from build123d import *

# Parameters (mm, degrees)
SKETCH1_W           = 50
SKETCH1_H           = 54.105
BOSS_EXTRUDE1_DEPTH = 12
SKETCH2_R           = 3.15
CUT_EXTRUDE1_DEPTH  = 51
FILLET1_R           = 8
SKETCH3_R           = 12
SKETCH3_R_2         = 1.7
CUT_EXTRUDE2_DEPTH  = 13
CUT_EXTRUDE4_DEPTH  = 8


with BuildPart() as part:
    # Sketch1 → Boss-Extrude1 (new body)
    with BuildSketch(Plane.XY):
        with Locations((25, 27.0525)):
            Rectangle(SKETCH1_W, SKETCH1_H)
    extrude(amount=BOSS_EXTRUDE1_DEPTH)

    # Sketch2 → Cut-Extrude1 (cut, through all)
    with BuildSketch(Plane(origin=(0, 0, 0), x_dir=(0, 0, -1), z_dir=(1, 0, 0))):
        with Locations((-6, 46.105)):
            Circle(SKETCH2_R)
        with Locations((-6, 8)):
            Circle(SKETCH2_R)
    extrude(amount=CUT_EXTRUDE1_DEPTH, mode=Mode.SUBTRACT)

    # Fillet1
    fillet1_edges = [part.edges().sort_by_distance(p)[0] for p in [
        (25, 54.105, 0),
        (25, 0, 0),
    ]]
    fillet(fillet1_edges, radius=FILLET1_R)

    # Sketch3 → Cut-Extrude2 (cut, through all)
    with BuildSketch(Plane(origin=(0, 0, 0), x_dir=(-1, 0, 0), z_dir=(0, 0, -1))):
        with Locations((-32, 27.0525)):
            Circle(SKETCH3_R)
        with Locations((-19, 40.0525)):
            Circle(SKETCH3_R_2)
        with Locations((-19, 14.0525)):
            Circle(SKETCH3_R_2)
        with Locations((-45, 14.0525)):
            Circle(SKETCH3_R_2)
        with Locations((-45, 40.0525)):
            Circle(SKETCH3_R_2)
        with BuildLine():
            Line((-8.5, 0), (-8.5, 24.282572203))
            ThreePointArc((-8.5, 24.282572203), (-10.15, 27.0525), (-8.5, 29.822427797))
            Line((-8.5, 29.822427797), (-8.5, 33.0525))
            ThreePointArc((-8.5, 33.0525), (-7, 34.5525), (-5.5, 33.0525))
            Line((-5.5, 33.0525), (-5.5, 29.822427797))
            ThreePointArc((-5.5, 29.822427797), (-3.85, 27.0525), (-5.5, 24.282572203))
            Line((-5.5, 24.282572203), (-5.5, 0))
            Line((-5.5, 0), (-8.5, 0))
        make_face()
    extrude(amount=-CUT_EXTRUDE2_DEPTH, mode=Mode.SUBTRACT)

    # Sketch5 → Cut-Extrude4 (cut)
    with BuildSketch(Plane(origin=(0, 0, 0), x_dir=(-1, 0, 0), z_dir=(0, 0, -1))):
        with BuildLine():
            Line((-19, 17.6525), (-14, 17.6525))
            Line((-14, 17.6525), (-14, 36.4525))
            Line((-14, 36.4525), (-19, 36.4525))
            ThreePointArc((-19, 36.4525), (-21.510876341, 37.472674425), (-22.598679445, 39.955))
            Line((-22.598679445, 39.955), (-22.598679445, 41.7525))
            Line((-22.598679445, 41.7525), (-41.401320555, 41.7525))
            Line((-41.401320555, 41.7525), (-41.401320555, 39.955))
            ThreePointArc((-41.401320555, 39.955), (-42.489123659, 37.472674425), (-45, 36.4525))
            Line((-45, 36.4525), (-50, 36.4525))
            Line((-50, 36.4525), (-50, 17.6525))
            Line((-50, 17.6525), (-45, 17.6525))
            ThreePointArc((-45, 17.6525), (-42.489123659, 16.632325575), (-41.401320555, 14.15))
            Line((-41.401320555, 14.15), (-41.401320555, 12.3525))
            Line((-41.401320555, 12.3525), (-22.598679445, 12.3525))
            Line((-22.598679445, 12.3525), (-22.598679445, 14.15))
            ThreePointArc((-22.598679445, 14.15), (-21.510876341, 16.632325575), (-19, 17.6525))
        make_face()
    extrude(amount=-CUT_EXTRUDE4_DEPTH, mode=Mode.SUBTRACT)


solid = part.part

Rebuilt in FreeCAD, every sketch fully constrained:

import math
import FreeCAD as App
import Part
import Sketcher

V = App.Vector
Q = App.Units.Quantity


def edges_at(feature, points):
    """Names of the edges that pass closest to the given points."""
    edges = feature.Shape.Edges
    near = lambda p: min(range(len(edges)), key=lambda i: edges[i].distToShape(Part.Vertex(*p))[0])
    return sorted({f"Edge{near(p) + 1}" for p in points})


def add_polygon(sketch, points):
    """Adds a closed chain of lines whose ends are joined by coincident constraints."""
    first, n = sketch.GeometryCount, len(points)
    for a, b in zip(points, points[1:] + points[:1]):
        sketch.addGeometry(Part.LineSegment(App.Vector(*a, 0), App.Vector(*b, 0)), False)
    for i in range(n):
        sketch.addConstraint(Sketcher.Constraint("Coincident", first + i, 2, first + (i + 1) % n, 1))

doc = App.newDocument("Part")
body = doc.addObject("PartDesign::Body", "Body")

# Sketch on XY plane
sketch1 = body.newObject("Sketcher::SketchObject", "Sketch")
sketch1.AttachmentSupport = (doc.getObject("XY_Plane"), [""])
sketch1.MapMode = "FlatFace"
add_polygon(sketch1, [(0, 54), (0, 0), (50, 0), (50, 54)])  # lines 0-3
sketch1.addConstraint([
    Sketcher.Constraint("Vertical", 0),
    Sketcher.Constraint("Horizontal", 1),
    Sketcher.Constraint("Vertical", 2),
    Sketcher.Constraint("Horizontal", 3),
    Sketcher.Constraint("Coincident", 0, 2, -1, 1),
    Sketcher.Constraint("DistanceX", 1, 1, 1, 2, Q("50 mm")),
    Sketcher.Constraint("DistanceY", 0, 2, 0, 1, Q("54.105 mm")),
])
pad1 = body.newObject("PartDesign::Pad", "Pad")
pad1.Profile = sketch1
pad1.Length = 12

# Sketch on YZ plane
sketch2 = body.newObject("Sketcher::SketchObject", "Sketch001")
sketch2.AttachmentSupport = (doc.getObject("YZ_Plane"), [""])
sketch2.MapMode = "FlatFace"
sketch2.addGeometry([
    Part.Circle(V(46.1, 6, 0), V(0, 0, 1), 3.1),
    Part.Circle(V(8, 6, 0), V(0, 0, 1), 3.1),
], False)
sketch2.addConstraint([
    Sketcher.Constraint("Equal", 0, 1),
    Sketcher.Constraint("Horizontal", 0, 3, 1, 3),
    Sketcher.Constraint("Diameter", 0, Q("6.3 mm")),
    Sketcher.Constraint("DistanceY", -1, 1, 0, 3, Q("6 mm")),
    Sketcher.Constraint("DistanceX", -1, 1, 1, 3, Q("8 mm")),
    Sketcher.Constraint("DistanceX", -1, 1, 0, 3, Q("46.105 mm")),
])
pocket1 = body.newObject("PartDesign::Pocket", "Pocket")
pocket1.Profile = sketch2
pocket1.Type = "ThroughAll"
pocket1.Reversed = True
doc.recompute()

fillet = body.newObject("PartDesign::Fillet", "Fillet")
fillet.Base = (pocket1, edges_at(pocket1, [(25, 54.105, 0), (25, 0, 0)]))
fillet.Radius = 8

# Sketch on XY plane
sketch3 = body.newObject("Sketcher::SketchObject", "Sketch002")
sketch3.AttachmentSupport = (doc.getObject("XY_Plane"), [""])
sketch3.MapMode = "FlatFace"
sketch3.addGeometry([
    Part.Circle(V(32, 27.1, 0), V(0, 0, 1), 12),  # 0
    Part.Circle(V(19, 40.1, 0), V(0, 0, 1), 1.7),  # 1
    Part.Circle(V(19, 14.1, 0), V(0, 0, 1), 1.7),  # 2
    Part.Circle(V(45, 14.1, 0), V(0, 0, 1), 1.7),  # 3
    Part.Circle(V(45, 40.1, 0), V(0, 0, 1), 1.7),  # 4
    Part.LineSegment(V(8.5, 24.3, 0), V(8.5, 0, 0)),  # 5
    Part.LineSegment(V(8.5, 0, 0), V(5.5, 0, 0)),  # 6
    Part.LineSegment(V(5.5, 0, 0), V(5.5, 24.3, 0)),  # 7
    Part.ArcOfCircle(Part.Circle(V(7, 27.1, 0), V(0, 0, 1), 3.1), math.radians(118), math.radians(242)),  # 8
    Part.LineSegment(V(5.5, 29.8, 0), V(5.5, 33.1, 0)),  # 9
    Part.ArcOfCircle(Part.Circle(V(7, 33.1, 0), V(0, 0, 1), 1.5), math.radians(0), math.radians(180)),  # 10
    Part.LineSegment(V(8.5, 33.1, 0), V(8.5, 29.8, 0)),  # 11
    Part.ArcOfCircle(Part.Circle(V(7, 27.1, 0), V(0, 0, 1), 3.1), math.radians(-62), math.radians(62)),  # 12
], False)
sketch3.addConstraint([
    Sketcher.Constraint("Coincident", 5, 2, 6, 1),
    Sketcher.Constraint("Coincident", 6, 2, 7, 1),
    Sketcher.Constraint("Coincident", 7, 2, 8, 2),
    Sketcher.Constraint("Coincident", 8, 1, 9, 1),
    Sketcher.Constraint("Tangent", 9, 2, 10, 2),
    Sketcher.Constraint("Tangent", 10, 1, 11, 1),
    Sketcher.Constraint("Coincident", 11, 2, 12, 2),
    Sketcher.Constraint("Coincident", 12, 1, 5, 1),
    Sketcher.Constraint("Vertical", 5),
    Sketcher.Constraint("Horizontal", 6),
    Sketcher.Constraint("Vertical", 7),
    Sketcher.Constraint("Vertical", 9),
    Sketcher.Constraint("Vertical", 11),
    Sketcher.Constraint("Coincident", 12, 3, 8, 3),
    Sketcher.Constraint("Equal", 1, 2),
    Sketcher.Constraint("Equal", 2, 3),
    Sketcher.Constraint("Equal", 3, 4),
    Sketcher.Constraint("Equal", 8, 12),
    Sketcher.Constraint("PointOnObject", 5, 2, -1),
    Sketcher.Constraint("Horizontal", 2, 3, 3, 3),
    Sketcher.Constraint("Horizontal", 1, 3, 4, 3),
    Sketcher.Constraint("Horizontal", 0, 3, 8, 3),
    Sketcher.Constraint("Horizontal", 8, 1, 11, 2),
    Sketcher.Constraint("Horizontal", 7, 2, 12, 1),
    Sketcher.Constraint("Vertical", 1, 3, 2, 3),
    Sketcher.Constraint("Vertical", 3, 3, 4, 3),
    Sketcher.Constraint("Vertical", 7, 2, 8, 1),
    Sketcher.Constraint("Diameter", 0, Q("24 mm")),
    Sketcher.Constraint("Diameter", 1, Q("3.4 mm")),
    Sketcher.Constraint("Radius", 10, Q("1.5 mm")),
    Sketcher.Constraint("Radius", 8, Q("3.15 mm")),
    Sketcher.Constraint("DistanceX", -1, 1, 0, 3, Q("32 mm")),
    Sketcher.Constraint("DistanceX", -1, 1, 1, 3, Q("19 mm")),
    Sketcher.Constraint("DistanceX", -1, 1, 3, 3, Q("45 mm")),
    Sketcher.Constraint("DistanceX", -1, 1, 8, 3, Q("7 mm")),
    Sketcher.Constraint("DistanceY", 0, 3, 1, 3, Q("13 mm")),
    Sketcher.Constraint("DistanceY", 2, 3, 0, 3, Q("13 mm")),
    Sketcher.Constraint("DistanceY", 8, 3, 10, 3, Q("6 mm")),
    Sketcher.Constraint("DistanceY", -1, 1, 0, 3, Q("27.0525 mm")),
])
pocket2 = body.newObject("PartDesign::Pocket", "Pocket001")
pocket2.Profile = sketch3
pocket2.Type = "ThroughAll"
pocket2.Reversed = True

# Sketch on XY plane
sketch4 = body.newObject("Sketcher::SketchObject", "Sketch003")
sketch4.AttachmentSupport = (doc.getObject("XY_Plane"), [""])
sketch4.MapMode = "FlatFace"
sketch4.addGeometry([
    Part.LineSegment(V(19, 17.7, 0), V(14, 17.7, 0)),  # 0
    Part.LineSegment(V(14, 17.7, 0), V(14, 36.5, 0)),  # 1
    Part.LineSegment(V(14, 36.5, 0), V(19, 36.5, 0)),  # 2
    Part.ArcOfCircle(Part.Circle(V(19, 40.1, 0), V(0, 0, 1), 3.6), math.radians(-90), math.radians(-2)),  # 3
    Part.LineSegment(V(22.6, 40, 0), V(22.6, 41.8, 0)),  # 4
    Part.LineSegment(V(22.6, 41.8, 0), V(41.4, 41.8, 0)),  # 5
    Part.LineSegment(V(41.4, 41.8, 0), V(41.4, 40, 0)),  # 6
    Part.ArcOfCircle(Part.Circle(V(45, 40.1, 0), V(0, 0, 1), 3.6), math.radians(-178), math.radians(-90)),  # 7
    Part.LineSegment(V(45, 36.5, 0), V(50, 36.5, 0)),  # 8
    Part.LineSegment(V(50, 36.5, 0), V(50, 17.7, 0)),  # 9
    Part.LineSegment(V(50, 17.7, 0), V(45, 17.7, 0)),  # 10
    Part.ArcOfCircle(Part.Circle(V(45, 14.1, 0), V(0, 0, 1), 3.6), math.radians(90), math.radians(178)),  # 11
    Part.LineSegment(V(41.4, 14.2, 0), V(41.4, 12.4, 0)),  # 12
    Part.LineSegment(V(41.4, 12.4, 0), V(22.6, 12.4, 0)),  # 13
    Part.LineSegment(V(22.6, 12.4, 0), V(22.6, 14.2, 0)),  # 14
    Part.ArcOfCircle(Part.Circle(V(19, 14.1, 0), V(0, 0, 1), 3.6), math.radians(2), math.radians(90)),  # 15
], False)
sketch4.addConstraint([
    Sketcher.Constraint("Coincident", 0, 2, 1, 1),
    Sketcher.Constraint("Coincident", 1, 2, 2, 1),
    Sketcher.Constraint("Tangent", 2, 2, 3, 1),
    Sketcher.Constraint("Coincident", 3, 2, 4, 1),
    Sketcher.Constraint("Coincident", 4, 2, 5, 1),
    Sketcher.Constraint("Coincident", 5, 2, 6, 1),
    Sketcher.Constraint("Coincident", 6, 2, 7, 1),
    Sketcher.Constraint("Tangent", 7, 2, 8, 1),
    Sketcher.Constraint("Coincident", 8, 2, 9, 1),
    Sketcher.Constraint("Coincident", 9, 2, 10, 1),
    Sketcher.Constraint("Tangent", 10, 2, 11, 1),
    Sketcher.Constraint("Coincident", 11, 2, 12, 1),
    Sketcher.Constraint("Coincident", 12, 2, 13, 1),
    Sketcher.Constraint("Coincident", 13, 2, 14, 1),
    Sketcher.Constraint("Coincident", 14, 2, 15, 1),
    Sketcher.Constraint("Tangent", 15, 2, 0, 1),
    Sketcher.Constraint("Horizontal", 0),
    Sketcher.Constraint("Vertical", 1),
    Sketcher.Constraint("Horizontal", 2),
    Sketcher.Constraint("Vertical", 4),
    Sketcher.Constraint("Horizontal", 5),
    Sketcher.Constraint("Vertical", 6),
    Sketcher.Constraint("Horizontal", 8),
    Sketcher.Constraint("Vertical", 9),
    Sketcher.Constraint("Horizontal", 10),
    Sketcher.Constraint("Vertical", 12),
    Sketcher.Constraint("Horizontal", 13),
    Sketcher.Constraint("Vertical", 14),
    Sketcher.Constraint("Equal", 3, 7),
    Sketcher.Constraint("Equal", 7, 11),
    Sketcher.Constraint("Equal", 11, 15),
    Sketcher.Constraint("Horizontal", 3, 3, 7, 3),
    Sketcher.Constraint("Horizontal", 11, 3, 15, 3),
    Sketcher.Constraint("Horizontal", 3, 2, 6, 2),
    Sketcher.Constraint("Horizontal", 11, 2, 14, 2),
    Sketcher.Constraint("Vertical", 7, 3, 11, 3),
    Sketcher.Constraint("Vertical", 3, 3, 15, 3),
    Sketcher.Constraint("Vertical", 6, 2, 11, 2),
    Sketcher.Constraint("Equal", 2, 8),
    Sketcher.Constraint("Equal", 6, 12),
    Sketcher.Constraint("Radius", 3, Q("3.6 mm")),
    Sketcher.Constraint("DistanceX", 0, 2, 0, 1, Q("5 mm")),
    Sketcher.Constraint("DistanceY", 1, 1, 1, 2, Q("18.8 mm")),
    Sketcher.Constraint("DistanceX", -1, 1, 3, 3, Q("19 mm")),
    Sketcher.Constraint("DistanceX", -1, 1, 7, 3, Q("45 mm")),
    Sketcher.Constraint("DistanceY", 3, 3, 4, 2, Q("1.7 mm")),
    Sketcher.Constraint("DistanceY", -1, 1, 11, 2, Q("14.15 mm")),
    Sketcher.Constraint("DistanceY", 4, 1, 4, 2, Q("1.7975 mm")),
])
pocket3 = body.newObject("PartDesign::Pocket", "Pocket002")
pocket3.Profile = sketch4
pocket3.Length = 8
pocket3.Reversed = True

doc.recompute()
